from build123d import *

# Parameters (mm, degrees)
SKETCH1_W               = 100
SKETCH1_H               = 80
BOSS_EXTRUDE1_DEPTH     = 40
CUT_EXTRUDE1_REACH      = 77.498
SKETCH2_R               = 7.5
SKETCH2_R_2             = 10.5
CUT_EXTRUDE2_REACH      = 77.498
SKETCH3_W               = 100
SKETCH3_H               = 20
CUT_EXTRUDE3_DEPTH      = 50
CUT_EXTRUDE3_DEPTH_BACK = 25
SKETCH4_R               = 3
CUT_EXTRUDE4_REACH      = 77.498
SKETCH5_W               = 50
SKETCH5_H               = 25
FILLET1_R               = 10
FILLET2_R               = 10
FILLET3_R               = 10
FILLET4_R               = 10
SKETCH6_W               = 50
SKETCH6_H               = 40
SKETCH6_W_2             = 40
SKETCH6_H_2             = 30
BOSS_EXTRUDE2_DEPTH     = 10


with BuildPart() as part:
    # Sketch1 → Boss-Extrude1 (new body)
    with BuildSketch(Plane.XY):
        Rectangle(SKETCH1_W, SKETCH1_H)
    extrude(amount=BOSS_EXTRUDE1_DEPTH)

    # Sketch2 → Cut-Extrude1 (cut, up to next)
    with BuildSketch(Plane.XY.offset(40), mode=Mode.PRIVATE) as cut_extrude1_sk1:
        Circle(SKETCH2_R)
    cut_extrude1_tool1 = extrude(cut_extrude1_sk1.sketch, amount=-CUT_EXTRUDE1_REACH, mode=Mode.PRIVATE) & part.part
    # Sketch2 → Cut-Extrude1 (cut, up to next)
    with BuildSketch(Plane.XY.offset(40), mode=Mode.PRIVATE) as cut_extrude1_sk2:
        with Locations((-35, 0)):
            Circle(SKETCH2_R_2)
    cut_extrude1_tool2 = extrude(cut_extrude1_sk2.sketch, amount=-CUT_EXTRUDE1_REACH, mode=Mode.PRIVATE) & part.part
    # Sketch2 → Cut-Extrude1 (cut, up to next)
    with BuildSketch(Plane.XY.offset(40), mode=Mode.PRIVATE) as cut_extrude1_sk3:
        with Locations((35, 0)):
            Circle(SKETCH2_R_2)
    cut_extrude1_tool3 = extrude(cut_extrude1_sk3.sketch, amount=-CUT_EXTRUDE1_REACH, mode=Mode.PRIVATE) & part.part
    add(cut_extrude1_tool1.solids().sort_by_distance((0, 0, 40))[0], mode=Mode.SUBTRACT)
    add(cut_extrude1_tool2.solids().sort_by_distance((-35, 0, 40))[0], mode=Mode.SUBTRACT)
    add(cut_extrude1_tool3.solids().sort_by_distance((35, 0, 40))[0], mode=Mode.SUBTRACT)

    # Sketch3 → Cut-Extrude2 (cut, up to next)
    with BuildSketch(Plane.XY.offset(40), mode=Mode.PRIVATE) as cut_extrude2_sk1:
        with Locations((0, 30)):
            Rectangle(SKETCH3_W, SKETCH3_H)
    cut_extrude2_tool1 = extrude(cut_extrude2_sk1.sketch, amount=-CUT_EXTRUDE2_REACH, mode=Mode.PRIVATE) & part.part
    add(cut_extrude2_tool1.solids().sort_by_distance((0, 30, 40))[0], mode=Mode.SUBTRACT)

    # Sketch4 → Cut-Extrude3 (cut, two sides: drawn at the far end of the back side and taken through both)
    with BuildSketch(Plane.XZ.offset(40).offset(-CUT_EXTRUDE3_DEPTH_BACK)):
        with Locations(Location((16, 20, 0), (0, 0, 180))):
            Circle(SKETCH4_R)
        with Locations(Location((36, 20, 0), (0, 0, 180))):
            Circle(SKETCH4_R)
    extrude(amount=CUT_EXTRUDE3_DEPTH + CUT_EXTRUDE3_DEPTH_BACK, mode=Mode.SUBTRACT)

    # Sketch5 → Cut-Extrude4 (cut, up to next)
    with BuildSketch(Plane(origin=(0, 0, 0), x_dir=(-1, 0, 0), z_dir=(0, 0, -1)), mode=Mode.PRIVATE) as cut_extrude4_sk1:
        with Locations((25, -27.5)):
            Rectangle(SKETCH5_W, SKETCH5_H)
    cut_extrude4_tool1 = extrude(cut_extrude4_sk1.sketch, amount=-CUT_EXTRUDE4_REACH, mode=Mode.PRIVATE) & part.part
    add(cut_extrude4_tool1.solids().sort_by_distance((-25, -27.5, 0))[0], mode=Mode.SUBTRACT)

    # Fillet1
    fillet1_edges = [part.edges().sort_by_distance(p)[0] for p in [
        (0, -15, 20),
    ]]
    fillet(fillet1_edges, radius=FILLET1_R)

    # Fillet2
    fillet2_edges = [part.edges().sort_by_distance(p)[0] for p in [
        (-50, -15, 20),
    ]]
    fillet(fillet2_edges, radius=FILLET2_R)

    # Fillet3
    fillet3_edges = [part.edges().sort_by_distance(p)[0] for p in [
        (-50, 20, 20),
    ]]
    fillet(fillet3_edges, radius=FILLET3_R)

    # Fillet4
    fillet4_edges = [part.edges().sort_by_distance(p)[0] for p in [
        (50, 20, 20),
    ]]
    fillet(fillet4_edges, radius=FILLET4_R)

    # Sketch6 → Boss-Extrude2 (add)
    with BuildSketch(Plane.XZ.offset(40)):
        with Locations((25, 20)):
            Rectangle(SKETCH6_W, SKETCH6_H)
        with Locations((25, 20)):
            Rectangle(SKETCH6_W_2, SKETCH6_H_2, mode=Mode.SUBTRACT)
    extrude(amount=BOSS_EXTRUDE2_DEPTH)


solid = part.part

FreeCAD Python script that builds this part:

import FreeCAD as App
import Part
import Sketcher


def edges_at(feature, points):
    """Names of the edges that pass closest to the given points."""
    edges = feature.Shape.Edges
    near = lambda p: min(range(len(edges)), key=lambda i: edges[i].distToShape(Part.Vertex(*p))[0])
    return sorted({f"Edge{near(p) + 1}" for p in points})

doc = App.newDocument("Part")
params = doc.addObject("Spreadsheet::Sheet", "Params")
for row, (alias, value) in enumerate([
    ("sketch1_width", "100 mm"),
    ("sketch1_height", "80 mm"),
    ("pad1_length", "40 mm"),
    ("sketch2_diameter", "15 mm"),
    ("sketch3_diameter", "21 mm"),
    ("sketch4_diameter", "21 mm"),
    ("sketch5_width", "100 mm"),
    ("sketch5_height", "20 mm"),
    ("sketch6_diameter", "6 mm"),
    ("pocket5_length", "50 mm"),
    ("pocket5_length2", "25 mm"),
    ("sketch7_width", "50 mm"),
    ("sketch7_height", "25 mm"),
    ("fillet_radius", "10 mm"),
    ("fillet2_radius", "10 mm"),
    ("fillet3_radius", "10 mm"),
    ("fillet4_radius", "10 mm"),
    ("sketch8_width", "50 mm"),
    ("sketch8_width2", "40 mm"),
    ("sketch8_height", "30 mm"),
    ("pad2_length", "10 mm"),
], start=1):
    params.set(f"A{row}", alias)
    params.set(f"B{row}", "=" + value)
    params.setAlias(f"B{row}", alias)

body = doc.addObject("PartDesign::Body", "Body")

# Sketch on XY plane
sketch1 = body.newObject("Sketcher::SketchObject", "Sketch")
sketch1.AttachmentSupport = (doc.getObject("XY_Plane"), [""])
sketch1.MapMode = "FlatFace"
sketch1.addGeometry([
    Part.LineSegment(App.Vector(-50, 40, 0), App.Vector(-50, -40, 0)),
    Part.LineSegment(App.Vector(-50, -40, 0), App.Vector(50, -40, 0)),
    Part.LineSegment(App.Vector(50, -40, 0), App.Vector(50, 40, 0)),
    Part.LineSegment(App.Vector(50, 40, 0), App.Vector(-50, 40, 0)),
], False)
sketch1.addConstraint([
    Sketcher.Constraint("Coincident", 0, 2, 1, 1),
    Sketcher.Constraint("Coincident", 1, 2, 2, 1),
    Sketcher.Constraint("Coincident", 2, 2, 3, 1),
    Sketcher.Constraint("Coincident", 3, 2, 0, 1),
    Sketcher.Constraint("Vertical", 0),
    Sketcher.Constraint("Horizontal", 1),
    Sketcher.Constraint("Vertical", 2),
    Sketcher.Constraint("Horizontal", 3),
    Sketcher.Constraint("Symmetric", 0, 2, 2, 2, -1, 1),
    Sketcher.Constraint("DistanceX", 1, 1, 1, 2, 100.0),
    Sketcher.Constraint("DistanceY", 0, 2, 0, 1, 80.0),
])
sketch1.setExpression("Constraints[9]", "Params.sketch1_width")
sketch1.setExpression("Constraints[10]", "Params.sketch1_height")
pad1 = body.newObject("PartDesign::Pad", "Pad")
pad1.Profile = sketch1
pad1.setExpression("Length", "Params.pad1_length")

# Sketch on XY plane
sketch2 = body.newObject("Sketcher::SketchObject", "Sketch001")
sketch2.AttachmentSupport = (doc.getObject("XY_Plane"), [""])
sketch2.MapMode = "FlatFace"
sketch2.AttachmentOffset = App.Placement(App.Vector(0, 0, 40), App.Rotation())
sketch2.addGeometry(Part.Circle(App.Vector(0, 0, 0), App.Vector(0, 0, 1), 8), False)
sketch2.addConstraint([
    Sketcher.Constraint("Coincident", 0, 3, -1, 1),
    Sketcher.Constraint("Diameter", 0, 15.0),
])
sketch2.setExpression("Constraints[1]", "Params.sketch2_diameter")
pocket1 = body.newObject("PartDesign::Pocket", "Pocket")
pocket1.Profile = sketch2
pocket1.Type = "UpToFirst"

# Sketch on XY plane
sketch3 = body.newObject("Sketcher::SketchObject", "Sketch002")
sketch3.AttachmentSupport = (doc.getObject("XY_Plane"), [""])
sketch3.MapMode = "FlatFace"
sketch3.AttachmentOffset = App.Placement(App.Vector(0, 0, 40), App.Rotation())
sketch3.addGeometry(Part.Circle(App.Vector(-35, 0, 0), App.Vector(0, 0, 1), 10), False)
sketch3.addConstraint([
    Sketcher.Constraint("PointOnObject", 0, 3, -1),
    Sketcher.Constraint("Diameter", 0, 21.0),
    Sketcher.Constraint("DistanceX", 0, 3, -1, 1, 35.0),
])
sketch3.setExpression("Constraints[1]", "Params.sketch3_diameter")
pocket2 = body.newObject("PartDesign::Pocket", "Pocket001")
pocket2.Profile = sketch3
pocket2.Type = "UpToFirst"

# Sketch on XY plane
sketch4 = body.newObject("Sketcher::SketchObject", "Sketch003")
sketch4.AttachmentSupport = (doc.getObject("XY_Plane"), [""])
sketch4.MapMode = "FlatFace"
sketch4.AttachmentOffset = App.Placement(App.Vector(0, 0, 40), App.Rotation())
sketch4.addGeometry(Part.Circle(App.Vector(35, 0, 0), App.Vector(0, 0, 1), 10), False)
sketch4.addConstraint([
    Sketcher.Constraint("PointOnObject", 0, 3, -1),
    Sketcher.Constraint("Diameter", 0, 21.0),
    Sketcher.Constraint("DistanceX", -1, 1, 0, 3, 35.0),
])
sketch4.setExpression("Constraints[1]", "Params.sketch4_diameter")
pocket3 = body.newObject("PartDesign::Pocket", "Pocket002")
pocket3.Profile = sketch4
pocket3.Type = "UpToFirst"

# Sketch on XY plane
sketch5 = body.newObject("Sketcher::SketchObject", "Sketch004")
sketch5.AttachmentSupport = (doc.getObject("XY_Plane"), [""])
sketch5.MapMode = "FlatFace"
sketch5.AttachmentOffset = App.Placement(App.Vector(0, 0, 40), App.Rotation())
sketch5.addGeometry([
    Part.LineSegment(App.Vector(-50, 40, 0), App.Vector(-50, 20, 0)),
    Part.LineSegment(App.Vector(-50, 20, 0), App.Vector(50, 20, 0)),
    Part.LineSegment(App.Vector(50, 20, 0), App.Vector(50, 40, 0)),
    Part.LineSegment(App.Vector(50, 40, 0), App.Vector(-50, 40, 0)),
], False)
sketch5.addConstraint([
    Sketcher.Constraint("Coincident", 0, 2, 1, 1),
    Sketcher.Constraint("Coincident", 1, 2, 2, 1),
    Sketcher.Constraint("Coincident", 2, 2, 3, 1),
    Sketcher.Constraint("Coincident", 3, 2, 0, 1),
    Sketcher.Constraint("Vertical", 0),
    Sketcher.Constraint("Horizontal", 1),
    Sketcher.Constraint("Vertical", 2),
    Sketcher.Constraint("Horizontal", 3),
    Sketcher.Constraint("DistanceX", 1, 1, 1, 2, 100.0),
    Sketcher.Constraint("DistanceY", 0, 2, 0, 1, 20.0),
    Sketcher.Constraint("DistanceX", 0, 2, -1, 1, 50.0),
    Sketcher.Constraint("DistanceY", -1, 1, 0, 2, 20.0),
])
sketch5.setExpression("Constraints[8]", "Params.sketch5_width")
sketch5.setExpression("Constraints[9]", "Params.sketch5_height")
pocket4 = body.newObject("PartDesign::Pocket", "Pocket003")
pocket4.Profile = sketch5
pocket4.Type = "UpToFirst"

# Sketch on XZ plane
sketch6 = body.newObject("Sketcher::SketchObject", "Sketch005")
sketch6.AttachmentSupport = (doc.getObject("XZ_Plane"), [""])
sketch6.MapMode = "FlatFace"
sketch6.AttachmentOffset = App.Placement(App.Vector(0, 0, 40), App.Rotation())
sketch6.addGeometry([
    Part.Circle(App.Vector(16, 20, 0), App.Vector(0, 0, 1), 3),
    Part.Circle(App.Vector(36, 20, 0), App.Vector(0, 0, 1), 3),
], False)
sketch6.addConstraint([
    Sketcher.Constraint("Equal", 0, 1),
    Sketcher.Constraint("Horizontal", 0, 3, 1, 3),
    Sketcher.Constraint("Diameter", 0, 6.0),
    Sketcher.Constraint("DistanceX", -1, 1, 0, 3, 16.0),
    Sketcher.Constraint("DistanceY", -1, 1, 0, 3, 20.0),
    Sketcher.Constraint("DistanceX", -1, 1, 1, 3, 36.0),
])
sketch6.setExpression("Constraints[2]", "Params.sketch6_diameter")
pocket5 = body.newObject("PartDesign::Pocket", "Pocket004")
pocket5.Profile = sketch6
pocket5.Type = "TwoLengths"
pocket5.setExpression("Length", "Params.pocket5_length")
pocket5.setExpression("Length2", "Params.pocket5_length2")
pocket5.Reversed = True

# Sketch on XY plane
sketch7 = body.newObject("Sketcher::SketchObject", "Sketch006")
sketch7.AttachmentSupport = (doc.getObject("XY_Plane"), [""])
sketch7.MapMode = "FlatFace"
sketch7.addGeometry([
    Part.LineSegment(App.Vector(0, -15, 0), App.Vector(0, -40, 0)),
    Part.LineSegment(App.Vector(0, -40, 0), App.Vector(-50, -40, 0)),
    Part.LineSegment(App.Vector(-50, -40, 0), App.Vector(-50, -15, 0)),
    Part.LineSegment(App.Vector(-50, -15, 0), App.Vector(0, -15, 0)),
], False)
sketch7.addConstraint([
    Sketcher.Constraint("Coincident", 0, 2, 1, 1),
    Sketcher.Constraint("Coincident", 1, 2, 2, 1),
    Sketcher.Constraint("Coincident", 2, 2, 3, 1),
    Sketcher.Constraint("Coincident", 3, 2, 0, 1),
    Sketcher.Constraint("Vertical", 0),
    Sketcher.Constraint("Horizontal", 1),
    Sketcher.Constraint("Vertical", 2),
    Sketcher.Constraint("Horizontal", 3),
    Sketcher.Constraint("PointOnObject", 0, 2, -2),
    Sketcher.Constraint("DistanceX", 1, 2, 1, 1, 50.0),
    Sketcher.Constraint("DistanceY", 0, 2, 0, 1, 25.0),
    Sketcher.Constraint("DistanceY", 0, 2, -1, 1, 40.0),
])
sketch7.setExpression("Constraints[9]", "Params.sketch7_width")
sketch7.setExpression("Constraints[10]", "Params.sketch7_height")
pocket6 = body.newObject("PartDesign::Pocket", "Pocket005")
pocket6.Profile = sketch7
pocket6.Type = "UpToFirst"
pocket6.Reversed = True
doc.recompute()

fillet = body.newObject("PartDesign::Fillet", "Fillet")
fillet.Base = (pocket6, edges_at(pocket6, [(0, -15, 20)]))
fillet.setExpression("Radius", "Params.fillet_radius")
doc.recompute()

fillet2 = body.newObject("PartDesign::Fillet", "Fillet001")
fillet2.Base = (fillet, edges_at(fillet, [(-50, -15, 20)]))
fillet2.setExpression("Radius", "Params.fillet2_radius")
doc.recompute()

fillet3 = body.newObject("PartDesign::Fillet", "Fillet002")
fillet3.Base = (fillet2, edges_at(fillet2, [(-50, 20, 20)]))
fillet3.setExpression("Radius", "Params.fillet3_radius")
doc.recompute()

fillet4 = body.newObject("PartDesign::Fillet", "Fillet003")
fillet4.Base = (fillet3, edges_at(fillet3, [(50, 20, 20)]))
fillet4.setExpression("Radius", "Params.fillet4_radius")

# Sketch on XZ plane
sketch8 = body.newObject("Sketcher::SketchObject", "Sketch007")
sketch8.AttachmentSupport = (doc.getObject("XZ_Plane"), [""])
sketch8.MapMode = "FlatFace"
sketch8.AttachmentOffset = App.Placement(App.Vector(0, 0, 40), App.Rotation())
sketch8.addGeometry([
    Part.LineSegment(App.Vector(0, 40, 0), App.Vector(0, 0, 0)),  # 0
    Part.LineSegment(App.Vector(0, 0, 0), App.Vector(50, 0, 0)),  # 1
    Part.LineSegment(App.Vector(50, 0, 0), App.Vector(50, 40, 0)),  # 2
    Part.LineSegment(App.Vector(50, 40, 0), App.Vector(0, 40, 0)),  # 3
    Part.LineSegment(App.Vector(45, 5, 0), App.Vector(5, 5, 0)),  # 4
    Part.LineSegment(App.Vector(5, 5, 0), App.Vector(5, 35, 0)),  # 5
    Part.LineSegment(App.Vector(5, 35, 0), App.Vector(45, 35, 0)),  # 6
    Part.LineSegment(App.Vector(45, 35, 0), App.Vector(45, 5, 0)),  # 7
], False)
sketch8.addConstraint([
    Sketcher.Constraint("Coincident", 0, 2, 1, 1),
    Sketcher.Constraint("Coincident", 1, 2, 2, 1),
    Sketcher.Constraint("Coincident", 2, 2, 3, 1),
    Sketcher.Constraint("Coincident", 3, 2, 0, 1),
    Sketcher.Constraint("Coincident", 4, 2, 5, 1),
    Sketcher.Constraint("Coincident", 5, 2, 6, 1),
    Sketcher.Constraint("Coincident", 6, 2, 7, 1),
    Sketcher.Constraint("Coincident", 7, 2, 4, 1),
    Sketcher.Constraint("Vertical", 0),
    Sketcher.Constraint("Horizontal", 1),
    Sketcher.Constraint("Vertical", 2),
    Sketcher.Constraint("Horizontal", 3),
    Sketcher.Constraint("Horizontal", 4),
    Sketcher.Constraint("Vertical", 5),
    Sketcher.Constraint("Horizontal", 6),
    Sketcher.Constraint("Vertical", 7),
    Sketcher.Constraint("Coincident", 0, 2, -1, 1),
    Sketcher.Constraint("Equal", 6, 0),
    Sketcher.Constraint("DistanceX", 1, 1, 1, 2, 50.0),
    Sketcher.Constraint("DistanceX", 4, 2, 4, 1, 40.0),
    Sketcher.Constraint("DistanceY", 5, 1, 5, 2, 30.0),
    Sketcher.Constraint("DistanceX", -1, 1, 4, 2, 5.0),
    Sketcher.Constraint("DistanceY", -1, 1, 4, 2, 5.0),
])
sketch8.setExpression("Constraints[18]", "Params.sketch8_width")
sketch8.setExpression("Constraints[19]", "Params.sketch8_width2")
sketch8.setExpression("Constraints[20]", "Params.sketch8_height")
pad2 = body.newObject("PartDesign::Pad", "Pad001")
pad2.Profile = sketch8
pad2.setExpression("Length", "Params.pad2_length")

doc.recompute()
